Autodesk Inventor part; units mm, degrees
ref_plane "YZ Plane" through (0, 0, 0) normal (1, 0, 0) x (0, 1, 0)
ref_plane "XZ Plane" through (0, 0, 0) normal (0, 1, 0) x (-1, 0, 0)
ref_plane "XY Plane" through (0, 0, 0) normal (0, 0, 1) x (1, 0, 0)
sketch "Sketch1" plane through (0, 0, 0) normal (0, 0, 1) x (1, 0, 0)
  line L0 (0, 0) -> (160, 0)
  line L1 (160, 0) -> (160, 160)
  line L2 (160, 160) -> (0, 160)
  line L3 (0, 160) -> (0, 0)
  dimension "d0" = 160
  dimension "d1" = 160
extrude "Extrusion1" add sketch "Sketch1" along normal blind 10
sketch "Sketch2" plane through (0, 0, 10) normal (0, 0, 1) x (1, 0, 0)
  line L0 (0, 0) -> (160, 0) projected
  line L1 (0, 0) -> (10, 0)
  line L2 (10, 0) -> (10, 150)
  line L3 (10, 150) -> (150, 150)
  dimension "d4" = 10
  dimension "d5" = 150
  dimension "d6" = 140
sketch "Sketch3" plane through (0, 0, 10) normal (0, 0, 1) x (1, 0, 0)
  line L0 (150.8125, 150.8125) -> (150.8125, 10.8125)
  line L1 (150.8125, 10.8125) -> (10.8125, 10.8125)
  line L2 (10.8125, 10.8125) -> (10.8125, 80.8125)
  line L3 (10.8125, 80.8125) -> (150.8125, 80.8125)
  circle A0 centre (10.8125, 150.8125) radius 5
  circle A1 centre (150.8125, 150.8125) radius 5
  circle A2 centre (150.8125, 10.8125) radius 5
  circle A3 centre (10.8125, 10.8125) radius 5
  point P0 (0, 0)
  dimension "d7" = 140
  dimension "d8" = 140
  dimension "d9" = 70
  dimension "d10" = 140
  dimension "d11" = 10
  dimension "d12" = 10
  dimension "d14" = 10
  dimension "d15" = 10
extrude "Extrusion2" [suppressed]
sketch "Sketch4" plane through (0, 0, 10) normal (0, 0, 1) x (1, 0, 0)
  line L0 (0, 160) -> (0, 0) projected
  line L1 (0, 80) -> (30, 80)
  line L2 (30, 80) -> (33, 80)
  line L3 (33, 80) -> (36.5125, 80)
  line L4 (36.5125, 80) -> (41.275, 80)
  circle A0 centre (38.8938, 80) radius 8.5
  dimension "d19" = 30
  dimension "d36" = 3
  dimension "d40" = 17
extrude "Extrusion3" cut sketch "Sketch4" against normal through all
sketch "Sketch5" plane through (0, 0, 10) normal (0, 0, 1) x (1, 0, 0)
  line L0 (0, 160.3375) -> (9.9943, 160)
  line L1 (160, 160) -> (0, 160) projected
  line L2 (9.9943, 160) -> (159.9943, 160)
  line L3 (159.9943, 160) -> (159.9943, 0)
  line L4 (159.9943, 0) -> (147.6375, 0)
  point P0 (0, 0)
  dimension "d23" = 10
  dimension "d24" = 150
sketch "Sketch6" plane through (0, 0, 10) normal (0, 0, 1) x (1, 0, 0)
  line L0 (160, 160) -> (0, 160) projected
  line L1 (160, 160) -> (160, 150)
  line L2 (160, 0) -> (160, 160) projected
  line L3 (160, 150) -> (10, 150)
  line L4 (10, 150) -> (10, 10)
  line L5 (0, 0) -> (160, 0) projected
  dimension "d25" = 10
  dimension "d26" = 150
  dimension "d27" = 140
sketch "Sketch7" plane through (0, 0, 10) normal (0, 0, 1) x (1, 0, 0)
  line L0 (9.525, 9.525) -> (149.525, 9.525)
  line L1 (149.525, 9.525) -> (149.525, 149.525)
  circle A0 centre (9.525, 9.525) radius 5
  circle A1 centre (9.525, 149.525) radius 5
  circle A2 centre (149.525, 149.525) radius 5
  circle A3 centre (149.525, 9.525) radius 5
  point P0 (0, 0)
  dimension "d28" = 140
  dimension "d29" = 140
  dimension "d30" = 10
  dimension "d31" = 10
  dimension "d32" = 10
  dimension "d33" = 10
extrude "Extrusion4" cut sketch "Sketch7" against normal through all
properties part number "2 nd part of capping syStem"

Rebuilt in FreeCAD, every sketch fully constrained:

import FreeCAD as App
import Part
import Sketcher
Q = App.Units.Quantity

doc = App.newDocument("Part")
body = doc.addObject("PartDesign::Body", "Body")

# Sketch on XY plane
sketch1 = body.newObject("Sketcher::SketchObject", "Sketch")
sketch1.AttachmentSupport = (doc.getObject("XY_Plane"), [""])
sketch1.MapMode = "FlatFace"
sketch1.addGeometry(Part.LineSegment(App.Vector(0, 160, 0), App.Vector(0, 0, 0)), False)
sketch1.addGeometry(Part.LineSegment(App.Vector(0, 0, 0), App.Vector(160, 0, 0)), False)
sketch1.addGeometry(Part.LineSegment(App.Vector(160, 0, 0), App.Vector(160, 160, 0)), False)
sketch1.addGeometry(Part.LineSegment(App.Vector(160, 160, 0), App.Vector(0, 160, 0)), False)
sketch1.addConstraint(Sketcher.Constraint("Coincident", 0, 2, 1, 1))
sketch1.addConstraint(Sketcher.Constraint("Coincident", 1, 2, 2, 1))
sketch1.addConstraint(Sketcher.Constraint("Coincident", 2, 2, 3, 1))
sketch1.addConstraint(Sketcher.Constraint("Coincident", 3, 2, 0, 1))
sketch1.addConstraint(Sketcher.Constraint("Vertical", 0))
sketch1.addConstraint(Sketcher.Constraint("Horizontal", 1))
sketch1.addConstraint(Sketcher.Constraint("Vertical", 2))
sketch1.addConstraint(Sketcher.Constraint("Horizontal", 3))
sketch1.addConstraint(Sketcher.Constraint("Coincident", 0, 2, -1, 1))
sketch1.addConstraint(Sketcher.Constraint("Equal", 3, 0))
sketch1.addConstraint(Sketcher.Constraint("DistanceX", 1, 1, 1, 2, Q("160 mm")))
pad1 = body.newObject("PartDesign::Pad", "Pad")
pad1.Profile = sketch1
pad1.Length = 10

# Sketch on XY plane
sketch2 = body.newObject("Sketcher::SketchObject", "Sketch001")
sketch2.AttachmentSupport = (doc.getObject("XY_Plane"), [""])
sketch2.MapMode = "FlatFace"
sketch2.AttachmentOffset = App.Placement(App.Vector(0, 0, 10), App.Rotation())
sketch2.addGeometry(Part.Circle(App.Vector(39, 80, 0), App.Vector(0, 0, 1), 8), False)
sketch2.addConstraint(Sketcher.Constraint("Diameter", 0, Q("17 mm")))
sketch2.addConstraint(Sketcher.Constraint("DistanceY", -1, 1, 0, 3, Q("80 mm")))
sketch2.addConstraint(Sketcher.Constraint("DistanceX", -1, 1, 0, 3, Q("38.8938 mm")))
pocket1 = body.newObject("PartDesign::Pocket", "Pocket")
pocket1.Profile = sketch2
pocket1.Type = "ThroughAll"

# Sketch on XY plane
sketch3 = body.newObject("Sketcher::SketchObject", "Sketch002")
sketch3.AttachmentSupport = (doc.getObject("XY_Plane"), [""])
sketch3.MapMode = "FlatFace"
sketch3.AttachmentOffset = App.Placement(App.Vector(0, 0, 10), App.Rotation())
sketch3.addGeometry(Part.Circle(App.Vector(150, 150, 0), App.Vector(0, 0, 1), 5), False)
sketch3.addGeometry(Part.Circle(App.Vector(150, 10, 0), App.Vector(0, 0, 1), 5), False)
sketch3.addGeometry(Part.Circle(App.Vector(10, 10, 0), App.Vector(0, 0, 1), 5), False)
sketch3.addGeometry(Part.Circle(App.Vector(10, 150, 0), App.Vector(0, 0, 1), 5), False)
sketch3.addConstraint(Sketcher.Constraint("Equal", 0, 1))
sketch3.addConstraint(Sketcher.Constraint("Equal", 1, 2))
sketch3.addConstraint(Sketcher.Constraint("Equal", 2, 3))
sketch3.addConstraint(Sketcher.Constraint("Horizontal", 1, 3, 2, 3))
sketch3.addConstraint(Sketcher.Constraint("Horizontal", 0, 3, 3, 3))
sketch3.addConstraint(Sketcher.Constraint("Vertical", 0, 3, 1, 3))
sketch3.addConstraint(Sketcher.Constraint("Vertical", 2, 3, 3, 3))
sketch3.addConstraint(Sketcher.Constraint("Diameter", 0, Q("10 mm")))
sketch3.addConstraint(Sketcher.Constraint("DistanceY", 1, 3, 0, 3, Q("140 mm")))
sketch3.addConstraint(Sketcher.Constraint("DistanceX", 2, 3, 1, 3, Q("140 mm")))
sketch3.addConstraint(Sketcher.Constraint("DistanceX", -1, 1, 0, 3, Q("149.525 mm")))
sketch3.addConstraint(Sketcher.Constraint("DistanceY", -1, 1, 0, 3, Q("149.525 mm")))
pocket2 = body.newObject("PartDesign::Pocket", "Pocket001")
pocket2.Profile = sketch3
pocket2.Type = "ThroughAll"

doc.recompute()
